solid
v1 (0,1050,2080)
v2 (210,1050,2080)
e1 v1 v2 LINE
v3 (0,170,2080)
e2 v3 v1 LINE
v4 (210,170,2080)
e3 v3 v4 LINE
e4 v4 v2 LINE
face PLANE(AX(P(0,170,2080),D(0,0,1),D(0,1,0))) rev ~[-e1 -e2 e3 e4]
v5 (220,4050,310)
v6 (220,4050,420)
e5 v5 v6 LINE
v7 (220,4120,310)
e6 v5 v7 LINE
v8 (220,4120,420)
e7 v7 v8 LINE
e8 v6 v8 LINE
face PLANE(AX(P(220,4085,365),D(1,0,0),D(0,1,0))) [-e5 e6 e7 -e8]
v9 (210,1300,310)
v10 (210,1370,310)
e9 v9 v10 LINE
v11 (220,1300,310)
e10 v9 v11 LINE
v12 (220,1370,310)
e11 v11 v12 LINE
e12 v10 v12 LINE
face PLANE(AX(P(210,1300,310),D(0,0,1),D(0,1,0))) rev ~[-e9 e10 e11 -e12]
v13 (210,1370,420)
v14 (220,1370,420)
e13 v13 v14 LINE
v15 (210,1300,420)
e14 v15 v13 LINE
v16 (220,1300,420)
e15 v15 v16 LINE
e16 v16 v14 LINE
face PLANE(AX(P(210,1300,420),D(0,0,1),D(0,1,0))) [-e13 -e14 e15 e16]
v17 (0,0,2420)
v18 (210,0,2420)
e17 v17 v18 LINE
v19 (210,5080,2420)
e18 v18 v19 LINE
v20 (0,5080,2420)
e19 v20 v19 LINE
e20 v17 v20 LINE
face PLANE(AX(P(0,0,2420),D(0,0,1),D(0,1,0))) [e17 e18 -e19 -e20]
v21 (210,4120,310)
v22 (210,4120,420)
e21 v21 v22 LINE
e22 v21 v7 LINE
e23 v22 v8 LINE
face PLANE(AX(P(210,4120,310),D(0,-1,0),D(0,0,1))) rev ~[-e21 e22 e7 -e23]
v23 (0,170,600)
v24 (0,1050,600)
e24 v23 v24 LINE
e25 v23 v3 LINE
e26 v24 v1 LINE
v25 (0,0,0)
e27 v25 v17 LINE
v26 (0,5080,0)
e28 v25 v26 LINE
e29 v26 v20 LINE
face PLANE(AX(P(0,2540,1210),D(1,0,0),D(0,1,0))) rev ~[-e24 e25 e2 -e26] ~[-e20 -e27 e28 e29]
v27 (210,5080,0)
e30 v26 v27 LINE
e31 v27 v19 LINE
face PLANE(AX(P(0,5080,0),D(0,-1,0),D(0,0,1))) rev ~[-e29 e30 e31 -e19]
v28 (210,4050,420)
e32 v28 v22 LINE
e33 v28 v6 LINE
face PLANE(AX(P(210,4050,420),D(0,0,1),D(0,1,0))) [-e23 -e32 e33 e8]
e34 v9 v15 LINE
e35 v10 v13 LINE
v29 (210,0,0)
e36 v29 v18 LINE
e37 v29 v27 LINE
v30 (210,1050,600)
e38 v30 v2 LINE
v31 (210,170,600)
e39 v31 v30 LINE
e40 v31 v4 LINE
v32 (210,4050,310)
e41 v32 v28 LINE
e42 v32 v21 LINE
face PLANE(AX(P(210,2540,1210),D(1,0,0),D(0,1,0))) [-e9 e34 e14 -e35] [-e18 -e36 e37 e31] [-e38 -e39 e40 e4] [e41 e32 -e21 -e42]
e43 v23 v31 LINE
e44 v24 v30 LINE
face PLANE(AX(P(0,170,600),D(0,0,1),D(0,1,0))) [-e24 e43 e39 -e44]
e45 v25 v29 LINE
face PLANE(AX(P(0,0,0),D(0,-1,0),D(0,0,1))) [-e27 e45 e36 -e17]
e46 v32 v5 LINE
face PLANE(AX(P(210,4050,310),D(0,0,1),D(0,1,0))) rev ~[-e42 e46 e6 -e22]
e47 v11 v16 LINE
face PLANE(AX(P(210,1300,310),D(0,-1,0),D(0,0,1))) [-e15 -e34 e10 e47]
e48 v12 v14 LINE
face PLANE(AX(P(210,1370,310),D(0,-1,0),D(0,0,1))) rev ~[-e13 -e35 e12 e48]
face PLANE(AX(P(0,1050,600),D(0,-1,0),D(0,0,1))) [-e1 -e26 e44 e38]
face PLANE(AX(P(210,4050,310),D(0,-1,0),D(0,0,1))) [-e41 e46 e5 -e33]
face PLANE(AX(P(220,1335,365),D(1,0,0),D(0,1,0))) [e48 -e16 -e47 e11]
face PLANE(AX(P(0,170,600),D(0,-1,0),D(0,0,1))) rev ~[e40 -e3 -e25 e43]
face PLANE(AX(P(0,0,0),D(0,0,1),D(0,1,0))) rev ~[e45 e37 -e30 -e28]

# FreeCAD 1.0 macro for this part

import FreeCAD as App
import Part
import Sketcher
from FreeCAD import Vector
Q = App.Units.Quantity


def add_polygon(sketch, points):
    """Adds a closed chain of lines whose ends are joined by coincident constraints."""
    first, n = sketch.GeometryCount, len(points)
    for a, b in zip(points, points[1:] + points[:1]):
        sketch.addGeometry(Part.LineSegment(App.Vector(*a, 0), App.Vector(*b, 0)), False)
    for i in range(n):
        sketch.addConstraint(Sketcher.Constraint("Coincident", first + i, 2, first + (i + 1) % n, 1))

doc = App.newDocument("Part")
body = doc.addObject("PartDesign::Body", "Body")

sketch1 = body.newObject("Sketcher::SketchObject", "Sketch")
sketch1.AttachmentSupport = (doc.getObject("YZ_Plane"), [""])
sketch1.MapMode = "FlatFace"
add_polygon(sketch1, [(0, 2420), (0, 0), (5080, 0), (5080, 2420)])
add_polygon(sketch1, [(1050, 600), (170, 600), (170, 2080), (1050, 2080)])
sketch1.addConstraint([
    Sketcher.Constraint("Vertical", 0),
    Sketcher.Constraint("Horizontal", 1),
    Sketcher.Constraint("Vertical", 2),
    Sketcher.Constraint("Horizontal", 3),
    Sketcher.Constraint("Horizontal", 4),
    Sketcher.Constraint("Vertical", 5),
    Sketcher.Constraint("Horizontal", 6),
    Sketcher.Constraint("Vertical", 7),
    Sketcher.Constraint("Coincident", 0, 2, -1, 1),
    Sketcher.Constraint("DistanceX", 1, 1, 1, 2, Q("5080 mm")),
    Sketcher.Constraint("DistanceX", 4, 2, 4, 1, Q("880 mm")),
    Sketcher.Constraint("DistanceY", 0, 2, 0, 1, Q("2420 mm")),
    Sketcher.Constraint("DistanceY", 5, 1, 5, 2, Q("1480 mm")),
    Sketcher.Constraint("DistanceX", -1, 1, 4, 2, Q("170 mm")),
    Sketcher.Constraint("DistanceY", -1, 1, 4, 2, Q("600 mm")),
])
pad1 = body.newObject("PartDesign::Pad", "Pad")
pad1.Profile = sketch1
pad1.Length = 210

sketch2 = body.newObject("Sketcher::SketchObject", "Sketch001")
sketch2.AttachmentSupport = (doc.getObject("YZ_Plane"), [""])
sketch2.MapMode = "FlatFace"
sketch2.AttachmentOffset = App.Placement(Vector(0, 0, 210), App.Rotation())
add_polygon(sketch2, [(1300, 420), (1300, 310), (1370, 310), (1370, 420)])
add_polygon(sketch2, [(4050, 420), (4050, 310), (4120, 310), (4120, 420)])
sketch2.addConstraint([
    Sketcher.Constraint("Vertical", 0),
    Sketcher.Constraint("Horizontal", 1),
    Sketcher.Constraint("Vertical", 2),
    Sketcher.Constraint("Horizontal", 3),
    Sketcher.Constraint("Vertical", 4),
    Sketcher.Constraint("Horizontal", 5),
    Sketcher.Constraint("Vertical", 6),
    Sketcher.Constraint("Horizontal", 7),
    Sketcher.Constraint("Horizontal", 1, 2, 4, 2),
    Sketcher.Constraint("Horizontal", 3, 2, 6, 2),
    Sketcher.Constraint("Equal", 3, 5),
    Sketcher.Constraint("DistanceX", 1, 1, 1, 2, Q("70 mm")),
    Sketcher.Constraint("DistanceY", 0, 2, 0, 1, Q("110 mm")),
    Sketcher.Constraint("DistanceX", -1, 1, 0, 2, Q("1300 mm")),
    Sketcher.Constraint("DistanceY", -1, 1, 0, 2, Q("310 mm")),
    Sketcher.Constraint("DistanceX", -1, 1, 4, 2, Q("4050 mm")),
])
pad2 = body.newObject("PartDesign::Pad", "Pad001")
pad2.Profile = sketch2
pad2.Length = 10

doc.recompute()
